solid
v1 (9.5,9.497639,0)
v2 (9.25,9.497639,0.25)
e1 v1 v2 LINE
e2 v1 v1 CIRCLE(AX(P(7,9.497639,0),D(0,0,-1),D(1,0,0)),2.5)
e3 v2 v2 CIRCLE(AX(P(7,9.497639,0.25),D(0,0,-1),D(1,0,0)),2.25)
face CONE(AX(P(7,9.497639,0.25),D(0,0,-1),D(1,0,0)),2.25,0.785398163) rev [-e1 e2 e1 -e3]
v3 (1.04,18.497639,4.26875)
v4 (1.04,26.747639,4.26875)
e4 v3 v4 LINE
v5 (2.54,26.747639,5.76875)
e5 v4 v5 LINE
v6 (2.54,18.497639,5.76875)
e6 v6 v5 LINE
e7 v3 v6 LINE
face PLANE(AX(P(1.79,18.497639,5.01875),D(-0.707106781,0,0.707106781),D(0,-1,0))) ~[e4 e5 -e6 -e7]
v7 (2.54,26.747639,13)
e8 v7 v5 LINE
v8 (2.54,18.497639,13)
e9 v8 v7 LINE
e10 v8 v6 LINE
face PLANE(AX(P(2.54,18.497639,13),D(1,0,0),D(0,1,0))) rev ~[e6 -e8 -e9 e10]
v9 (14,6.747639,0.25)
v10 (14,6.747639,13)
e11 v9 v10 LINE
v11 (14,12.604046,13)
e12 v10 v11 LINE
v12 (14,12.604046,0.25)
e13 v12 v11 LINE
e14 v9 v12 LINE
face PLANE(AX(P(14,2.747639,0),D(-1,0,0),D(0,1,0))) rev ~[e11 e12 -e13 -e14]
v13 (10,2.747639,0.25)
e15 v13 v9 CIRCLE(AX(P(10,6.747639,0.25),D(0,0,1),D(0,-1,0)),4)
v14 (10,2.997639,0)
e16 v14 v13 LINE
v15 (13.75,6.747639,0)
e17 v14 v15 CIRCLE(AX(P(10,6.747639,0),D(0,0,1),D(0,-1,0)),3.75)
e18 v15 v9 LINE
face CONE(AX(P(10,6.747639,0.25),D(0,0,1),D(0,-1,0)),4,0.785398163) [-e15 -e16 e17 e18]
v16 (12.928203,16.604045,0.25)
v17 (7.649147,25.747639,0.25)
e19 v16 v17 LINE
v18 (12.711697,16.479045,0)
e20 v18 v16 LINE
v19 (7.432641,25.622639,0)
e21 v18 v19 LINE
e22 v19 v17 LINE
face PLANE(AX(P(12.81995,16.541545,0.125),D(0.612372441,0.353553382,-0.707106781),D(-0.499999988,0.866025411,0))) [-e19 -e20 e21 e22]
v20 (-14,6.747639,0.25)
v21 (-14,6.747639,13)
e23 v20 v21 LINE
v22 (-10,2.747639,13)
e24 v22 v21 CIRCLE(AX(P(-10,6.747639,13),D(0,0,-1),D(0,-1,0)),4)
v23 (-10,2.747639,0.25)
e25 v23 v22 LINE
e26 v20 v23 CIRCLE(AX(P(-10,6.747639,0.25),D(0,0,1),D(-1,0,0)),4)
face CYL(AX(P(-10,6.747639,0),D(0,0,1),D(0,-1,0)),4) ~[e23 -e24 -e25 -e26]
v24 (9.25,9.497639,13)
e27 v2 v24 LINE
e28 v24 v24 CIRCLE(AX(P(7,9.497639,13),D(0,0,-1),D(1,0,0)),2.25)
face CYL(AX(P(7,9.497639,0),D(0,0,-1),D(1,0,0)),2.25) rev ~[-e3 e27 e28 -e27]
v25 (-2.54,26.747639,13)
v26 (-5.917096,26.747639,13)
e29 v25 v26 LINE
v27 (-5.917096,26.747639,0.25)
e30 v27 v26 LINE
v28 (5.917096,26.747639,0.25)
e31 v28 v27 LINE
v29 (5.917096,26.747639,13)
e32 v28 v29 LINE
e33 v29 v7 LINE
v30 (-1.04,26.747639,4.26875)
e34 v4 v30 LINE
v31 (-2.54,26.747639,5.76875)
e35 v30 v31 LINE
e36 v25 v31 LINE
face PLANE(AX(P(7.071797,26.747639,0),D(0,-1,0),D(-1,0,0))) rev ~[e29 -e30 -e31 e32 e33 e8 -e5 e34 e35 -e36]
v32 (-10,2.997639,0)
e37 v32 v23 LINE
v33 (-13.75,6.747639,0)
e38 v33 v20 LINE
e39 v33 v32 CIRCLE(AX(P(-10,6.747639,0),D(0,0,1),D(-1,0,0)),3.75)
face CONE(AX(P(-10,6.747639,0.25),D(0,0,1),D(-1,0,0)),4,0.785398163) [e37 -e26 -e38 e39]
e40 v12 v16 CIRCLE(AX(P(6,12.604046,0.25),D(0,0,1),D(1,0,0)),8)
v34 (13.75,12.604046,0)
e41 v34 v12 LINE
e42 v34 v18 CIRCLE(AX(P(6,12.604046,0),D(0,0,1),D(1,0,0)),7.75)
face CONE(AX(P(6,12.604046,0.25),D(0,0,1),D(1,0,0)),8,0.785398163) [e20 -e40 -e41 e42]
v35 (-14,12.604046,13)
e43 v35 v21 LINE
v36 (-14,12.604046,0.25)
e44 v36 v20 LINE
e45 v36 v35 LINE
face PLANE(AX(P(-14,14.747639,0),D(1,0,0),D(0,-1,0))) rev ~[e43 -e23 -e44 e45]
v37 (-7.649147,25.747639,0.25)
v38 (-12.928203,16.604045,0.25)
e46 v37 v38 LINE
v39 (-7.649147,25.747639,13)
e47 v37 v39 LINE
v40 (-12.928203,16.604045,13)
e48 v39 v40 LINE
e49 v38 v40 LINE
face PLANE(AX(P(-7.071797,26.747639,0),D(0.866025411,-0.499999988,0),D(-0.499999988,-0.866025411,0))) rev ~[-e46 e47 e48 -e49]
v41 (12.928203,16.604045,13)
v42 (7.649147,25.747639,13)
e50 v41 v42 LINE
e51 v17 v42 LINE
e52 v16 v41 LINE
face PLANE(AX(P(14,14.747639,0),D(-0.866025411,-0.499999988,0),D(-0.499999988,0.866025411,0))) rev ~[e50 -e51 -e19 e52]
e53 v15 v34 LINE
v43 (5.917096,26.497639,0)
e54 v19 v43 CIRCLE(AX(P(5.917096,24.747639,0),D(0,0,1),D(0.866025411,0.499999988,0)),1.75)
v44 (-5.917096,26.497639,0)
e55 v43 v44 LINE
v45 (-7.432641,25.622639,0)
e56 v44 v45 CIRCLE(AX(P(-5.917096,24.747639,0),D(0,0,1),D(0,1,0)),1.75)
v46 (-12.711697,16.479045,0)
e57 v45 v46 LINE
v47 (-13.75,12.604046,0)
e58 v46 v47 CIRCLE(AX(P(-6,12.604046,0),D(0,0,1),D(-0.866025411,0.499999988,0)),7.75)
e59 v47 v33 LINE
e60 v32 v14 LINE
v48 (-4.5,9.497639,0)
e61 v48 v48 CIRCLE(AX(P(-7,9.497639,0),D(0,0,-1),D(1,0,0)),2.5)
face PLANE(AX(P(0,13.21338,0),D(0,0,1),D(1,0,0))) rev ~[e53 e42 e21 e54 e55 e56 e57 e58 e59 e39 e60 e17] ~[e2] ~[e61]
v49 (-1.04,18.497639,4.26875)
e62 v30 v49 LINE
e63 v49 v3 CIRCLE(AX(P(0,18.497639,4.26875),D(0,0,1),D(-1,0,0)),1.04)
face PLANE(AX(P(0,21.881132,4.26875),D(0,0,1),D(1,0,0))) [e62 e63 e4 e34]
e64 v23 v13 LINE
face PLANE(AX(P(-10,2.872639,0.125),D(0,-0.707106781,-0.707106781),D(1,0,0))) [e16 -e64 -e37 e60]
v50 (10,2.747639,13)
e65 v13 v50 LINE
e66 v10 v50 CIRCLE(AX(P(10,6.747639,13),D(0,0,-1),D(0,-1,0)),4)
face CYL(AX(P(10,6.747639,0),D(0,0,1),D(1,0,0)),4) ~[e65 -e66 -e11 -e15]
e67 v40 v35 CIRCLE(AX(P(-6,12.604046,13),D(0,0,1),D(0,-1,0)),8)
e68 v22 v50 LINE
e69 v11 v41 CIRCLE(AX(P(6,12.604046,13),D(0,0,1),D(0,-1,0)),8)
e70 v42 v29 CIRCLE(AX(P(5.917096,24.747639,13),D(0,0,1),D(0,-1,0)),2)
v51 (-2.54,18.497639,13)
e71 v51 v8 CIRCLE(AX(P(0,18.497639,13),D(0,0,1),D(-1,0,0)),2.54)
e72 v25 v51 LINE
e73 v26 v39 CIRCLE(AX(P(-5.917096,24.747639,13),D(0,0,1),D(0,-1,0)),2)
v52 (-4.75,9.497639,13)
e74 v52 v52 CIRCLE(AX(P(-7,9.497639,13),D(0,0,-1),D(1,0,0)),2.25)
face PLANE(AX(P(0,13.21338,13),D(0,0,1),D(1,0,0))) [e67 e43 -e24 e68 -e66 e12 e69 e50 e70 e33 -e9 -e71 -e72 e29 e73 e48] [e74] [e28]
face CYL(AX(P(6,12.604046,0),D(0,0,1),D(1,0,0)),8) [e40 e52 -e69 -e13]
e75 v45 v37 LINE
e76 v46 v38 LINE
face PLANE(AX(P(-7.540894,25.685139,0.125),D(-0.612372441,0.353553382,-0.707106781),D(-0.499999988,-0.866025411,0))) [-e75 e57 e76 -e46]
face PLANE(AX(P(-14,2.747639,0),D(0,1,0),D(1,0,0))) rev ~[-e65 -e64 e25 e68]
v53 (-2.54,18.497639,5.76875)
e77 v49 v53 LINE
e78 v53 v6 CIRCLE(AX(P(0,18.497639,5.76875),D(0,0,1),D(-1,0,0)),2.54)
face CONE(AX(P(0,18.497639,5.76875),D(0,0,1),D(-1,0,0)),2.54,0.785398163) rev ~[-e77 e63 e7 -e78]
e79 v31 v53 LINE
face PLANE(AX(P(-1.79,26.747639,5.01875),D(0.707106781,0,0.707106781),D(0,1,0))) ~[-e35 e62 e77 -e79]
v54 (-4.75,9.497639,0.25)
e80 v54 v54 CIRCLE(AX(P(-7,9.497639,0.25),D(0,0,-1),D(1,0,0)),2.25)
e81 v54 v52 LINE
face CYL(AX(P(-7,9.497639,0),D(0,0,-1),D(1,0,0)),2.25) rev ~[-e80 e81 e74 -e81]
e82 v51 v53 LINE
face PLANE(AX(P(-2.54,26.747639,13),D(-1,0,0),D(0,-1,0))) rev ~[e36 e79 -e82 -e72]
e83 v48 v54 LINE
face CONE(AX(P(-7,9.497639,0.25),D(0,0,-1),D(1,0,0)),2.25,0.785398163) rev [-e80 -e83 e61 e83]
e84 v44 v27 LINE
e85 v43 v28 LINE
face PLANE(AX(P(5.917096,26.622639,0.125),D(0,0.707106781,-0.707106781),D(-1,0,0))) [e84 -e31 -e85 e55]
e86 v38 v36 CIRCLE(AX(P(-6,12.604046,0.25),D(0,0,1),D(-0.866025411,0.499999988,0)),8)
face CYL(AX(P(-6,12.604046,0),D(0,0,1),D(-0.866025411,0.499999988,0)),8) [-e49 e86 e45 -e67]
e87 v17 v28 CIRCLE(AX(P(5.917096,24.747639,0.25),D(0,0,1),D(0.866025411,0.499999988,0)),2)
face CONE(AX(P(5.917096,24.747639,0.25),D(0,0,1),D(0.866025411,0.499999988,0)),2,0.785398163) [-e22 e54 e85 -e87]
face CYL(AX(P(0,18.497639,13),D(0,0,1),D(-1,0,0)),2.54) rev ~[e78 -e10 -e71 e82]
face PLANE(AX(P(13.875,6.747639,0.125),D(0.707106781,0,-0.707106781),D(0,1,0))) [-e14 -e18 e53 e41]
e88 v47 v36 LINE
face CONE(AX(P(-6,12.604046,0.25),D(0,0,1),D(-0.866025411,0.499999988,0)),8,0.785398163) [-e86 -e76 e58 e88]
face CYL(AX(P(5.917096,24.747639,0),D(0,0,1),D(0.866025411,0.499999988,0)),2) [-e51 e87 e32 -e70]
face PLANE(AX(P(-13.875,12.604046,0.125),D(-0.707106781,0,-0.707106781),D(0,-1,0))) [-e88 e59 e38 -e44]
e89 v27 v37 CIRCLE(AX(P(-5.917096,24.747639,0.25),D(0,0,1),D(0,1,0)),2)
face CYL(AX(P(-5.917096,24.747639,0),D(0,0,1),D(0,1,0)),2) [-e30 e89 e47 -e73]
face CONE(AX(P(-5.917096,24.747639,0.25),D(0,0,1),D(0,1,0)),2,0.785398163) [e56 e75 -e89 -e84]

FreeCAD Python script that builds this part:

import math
import FreeCAD as App
import Part
import Sketcher

V = App.Vector
Q = App.Units.Quantity


def edges_at(feature, points):
    """Names of the edges that pass closest to the given points."""
    edges = feature.Shape.Edges
    near = lambda p: min(range(len(edges)), key=lambda i: edges[i].distToShape(Part.Vertex(*p))[0])
    return sorted({f"Edge{near(p) + 1}" for p in points})


def add_polygon(sketch, points):
    """Adds a closed chain of lines whose ends are joined by coincident constraints."""
    first, n = sketch.GeometryCount, len(points)
    for a, b in zip(points, points[1:] + points[:1]):
        sketch.addGeometry(Part.LineSegment(App.Vector(*a, 0), App.Vector(*b, 0)), False)
    for i in range(n):
        sketch.addConstraint(Sketcher.Constraint("Coincident", first + i, 2, first + (i + 1) % n, 1))

doc = App.newDocument("Part")
body = doc.addObject("PartDesign::Body", "Body")

# Sketch on XY plane
sketch1 = doc.addObject("Sketcher::SketchObject", "Sketch")
body.addObject(sketch1)
sketch1.AttachmentSupport = (doc.XY_Plane, [""])
sketch1.MapMode = "FlatFace"
add_polygon(sketch1, [(14, 3), (14, 15), (7, 27), (-7, 27), (-14, 15), (-14, 3)])  # lines 0-5
sketch1.addConstraint([
    Sketcher.Constraint("Vertical", 0),
    Sketcher.Constraint("Horizontal", 2),
    Sketcher.Constraint("Vertical", 4),
    Sketcher.Constraint("Horizontal", 5),
    Sketcher.Constraint("Symmetric", 0, 2, 3, 2, -2),
    Sketcher.Constraint("Equal", 1, 3),
    Sketcher.Constraint("DistanceX", 5, 1, 5, 2, Q("28 mm")),
    Sketcher.Constraint("DistanceY", 0, 1, 0, 2, Q("12 mm")),
    Sketcher.Constraint("Angle", 1, Q("119.999999 deg")),
    Sketcher.Constraint("DistanceY", 0, 2, 1, 2, Q("12 mm")),
    Sketcher.Constraint("DistanceY", -1, 1, 0, 2, Q("14.747639 mm")),
])
pad1 = doc.addObject("PartDesign::Pad", "Pad")
body.addObject(pad1)
pad1.Profile = sketch1
pad1.Length = 13
doc.recompute()

fillet = doc.addObject("PartDesign::Fillet", "Fillet")
body.addObject(fillet)
fillet.Base = (pad1, edges_at(pad1, [(-14, 14.748, 6.5), (14, 14.748, 6.5)]))
fillet.Radius = 8
doc.recompute()

fillet2 = doc.addObject("PartDesign::Fillet", "Fillet001")
body.addObject(fillet2)
fillet2.Base = (fillet, edges_at(fillet, [(-7.072, 26.748, 6.5), (7.072, 26.748, 6.5)]))
fillet2.Radius = 2

# Sketch on XY plane
sketch2 = doc.addObject("Sketcher::SketchObject", "Sketch001")
body.addObject(sketch2)
sketch2.AttachmentSupport = (doc.XY_Plane, [""])
sketch2.MapMode = "FlatFace"
sketch2.AttachmentOffset = App.Placement(V(0, 0, 13), App.Rotation())
sketch2.addGeometry([
    Part.LineSegment(V(-2.5, 26.7, 0), V(-2.5, 18.5, 0)),
    Part.ArcOfCircle(Part.Circle(V(0, 18.5, 0), V(0, 0, 1), 2.5), math.radians(180), math.radians(360)),
    Part.LineSegment(V(2.5, 18.5, 0), V(2.5, 26.7, 0)),
    Part.LineSegment(V(2.5, 26.7, 0), V(-2.5, 26.7, 0)),
], False)
sketch2.addConstraint([
    Sketcher.Constraint("Tangent", 0, 2, 1, 1),
    Sketcher.Constraint("Tangent", 1, 2, 2, 1),
    Sketcher.Constraint("Coincident", 2, 2, 3, 1),
    Sketcher.Constraint("Coincident", 3, 2, 0, 1),
    Sketcher.Constraint("Vertical", 0),
    Sketcher.Constraint("Vertical", 2),
    Sketcher.Constraint("Horizontal", 3),
    Sketcher.Constraint("PointOnObject", 1, 3, -2),
    Sketcher.Constraint("Radius", 1, Q("2.54 mm")),
    Sketcher.Constraint("DistanceY", 0, 2, 0, 1, Q("8.25 mm")),
    Sketcher.Constraint("DistanceY", -1, 1, 1, 3, Q("18.497639 mm")),
])
pocket1 = doc.addObject("PartDesign::Pocket", "Pocket")
body.addObject(pocket1)
pocket1.Profile = sketch2
pocket1.Length = 8.73125

# Sketch on XY plane
sketch3 = doc.addObject("Sketcher::SketchObject", "Sketch002")
body.addObject(sketch3)
sketch3.AttachmentSupport = (doc.XY_Plane, [""])
sketch3.MapMode = "FlatFace"
sketch3.addGeometry([
    Part.Circle(V(-7, 9.5, 0), V(0, 0, 1), 2.2),
    Part.Circle(V(7, 9.5, 0), V(0, 0, 1), 2.2),
], False)
sketch3.addConstraint([
    Sketcher.Constraint("Equal", 0, 1),
    Sketcher.Constraint("Symmetric", 0, 3, 1, 3, -2),
    Sketcher.Constraint("Diameter", 0, Q("4.5 mm")),
    Sketcher.Constraint("DistanceX", 0, 3, -1, 1, Q("7 mm")),
    Sketcher.Constraint("DistanceY", -1, 1, 0, 3, Q("9.497639 mm")),
])
pocket2 = doc.addObject("PartDesign::Pocket", "Pocket001")
body.addObject(pocket2)
pocket2.Profile = sketch3
pocket2.Type = "ThroughAll"
pocket2.Reversed = True
doc.recompute()

fillet3 = doc.addObject("PartDesign::Fillet", "Fillet002")
body.addObject(fillet3)
fillet3.Base = (pocket2, edges_at(pocket2, [(-14, 2.748, 6.5), (14, 2.748, 6.5)]))
fillet3.Radius = 4
doc.recompute()

chamfer = doc.addObject("PartDesign::Chamfer", "Chamfer")
body.addObject(chamfer)
chamfer.Base = (fillet3, edges_at(fillet3, [(0, 15.958, 4.269)]))
chamfer.Size = 1.5
doc.recompute()

chamfer2 = doc.addObject("PartDesign::Chamfer", "Chamfer001")
body.addObject(chamfer2)
chamfer2.Base = (chamfer, edges_at(chamfer, [(4.75, 9.498, 0), (-9.25, 9.498, 0), (10.289, 21.176, 0)]))
chamfer2.Size = 0.25

doc.recompute()
